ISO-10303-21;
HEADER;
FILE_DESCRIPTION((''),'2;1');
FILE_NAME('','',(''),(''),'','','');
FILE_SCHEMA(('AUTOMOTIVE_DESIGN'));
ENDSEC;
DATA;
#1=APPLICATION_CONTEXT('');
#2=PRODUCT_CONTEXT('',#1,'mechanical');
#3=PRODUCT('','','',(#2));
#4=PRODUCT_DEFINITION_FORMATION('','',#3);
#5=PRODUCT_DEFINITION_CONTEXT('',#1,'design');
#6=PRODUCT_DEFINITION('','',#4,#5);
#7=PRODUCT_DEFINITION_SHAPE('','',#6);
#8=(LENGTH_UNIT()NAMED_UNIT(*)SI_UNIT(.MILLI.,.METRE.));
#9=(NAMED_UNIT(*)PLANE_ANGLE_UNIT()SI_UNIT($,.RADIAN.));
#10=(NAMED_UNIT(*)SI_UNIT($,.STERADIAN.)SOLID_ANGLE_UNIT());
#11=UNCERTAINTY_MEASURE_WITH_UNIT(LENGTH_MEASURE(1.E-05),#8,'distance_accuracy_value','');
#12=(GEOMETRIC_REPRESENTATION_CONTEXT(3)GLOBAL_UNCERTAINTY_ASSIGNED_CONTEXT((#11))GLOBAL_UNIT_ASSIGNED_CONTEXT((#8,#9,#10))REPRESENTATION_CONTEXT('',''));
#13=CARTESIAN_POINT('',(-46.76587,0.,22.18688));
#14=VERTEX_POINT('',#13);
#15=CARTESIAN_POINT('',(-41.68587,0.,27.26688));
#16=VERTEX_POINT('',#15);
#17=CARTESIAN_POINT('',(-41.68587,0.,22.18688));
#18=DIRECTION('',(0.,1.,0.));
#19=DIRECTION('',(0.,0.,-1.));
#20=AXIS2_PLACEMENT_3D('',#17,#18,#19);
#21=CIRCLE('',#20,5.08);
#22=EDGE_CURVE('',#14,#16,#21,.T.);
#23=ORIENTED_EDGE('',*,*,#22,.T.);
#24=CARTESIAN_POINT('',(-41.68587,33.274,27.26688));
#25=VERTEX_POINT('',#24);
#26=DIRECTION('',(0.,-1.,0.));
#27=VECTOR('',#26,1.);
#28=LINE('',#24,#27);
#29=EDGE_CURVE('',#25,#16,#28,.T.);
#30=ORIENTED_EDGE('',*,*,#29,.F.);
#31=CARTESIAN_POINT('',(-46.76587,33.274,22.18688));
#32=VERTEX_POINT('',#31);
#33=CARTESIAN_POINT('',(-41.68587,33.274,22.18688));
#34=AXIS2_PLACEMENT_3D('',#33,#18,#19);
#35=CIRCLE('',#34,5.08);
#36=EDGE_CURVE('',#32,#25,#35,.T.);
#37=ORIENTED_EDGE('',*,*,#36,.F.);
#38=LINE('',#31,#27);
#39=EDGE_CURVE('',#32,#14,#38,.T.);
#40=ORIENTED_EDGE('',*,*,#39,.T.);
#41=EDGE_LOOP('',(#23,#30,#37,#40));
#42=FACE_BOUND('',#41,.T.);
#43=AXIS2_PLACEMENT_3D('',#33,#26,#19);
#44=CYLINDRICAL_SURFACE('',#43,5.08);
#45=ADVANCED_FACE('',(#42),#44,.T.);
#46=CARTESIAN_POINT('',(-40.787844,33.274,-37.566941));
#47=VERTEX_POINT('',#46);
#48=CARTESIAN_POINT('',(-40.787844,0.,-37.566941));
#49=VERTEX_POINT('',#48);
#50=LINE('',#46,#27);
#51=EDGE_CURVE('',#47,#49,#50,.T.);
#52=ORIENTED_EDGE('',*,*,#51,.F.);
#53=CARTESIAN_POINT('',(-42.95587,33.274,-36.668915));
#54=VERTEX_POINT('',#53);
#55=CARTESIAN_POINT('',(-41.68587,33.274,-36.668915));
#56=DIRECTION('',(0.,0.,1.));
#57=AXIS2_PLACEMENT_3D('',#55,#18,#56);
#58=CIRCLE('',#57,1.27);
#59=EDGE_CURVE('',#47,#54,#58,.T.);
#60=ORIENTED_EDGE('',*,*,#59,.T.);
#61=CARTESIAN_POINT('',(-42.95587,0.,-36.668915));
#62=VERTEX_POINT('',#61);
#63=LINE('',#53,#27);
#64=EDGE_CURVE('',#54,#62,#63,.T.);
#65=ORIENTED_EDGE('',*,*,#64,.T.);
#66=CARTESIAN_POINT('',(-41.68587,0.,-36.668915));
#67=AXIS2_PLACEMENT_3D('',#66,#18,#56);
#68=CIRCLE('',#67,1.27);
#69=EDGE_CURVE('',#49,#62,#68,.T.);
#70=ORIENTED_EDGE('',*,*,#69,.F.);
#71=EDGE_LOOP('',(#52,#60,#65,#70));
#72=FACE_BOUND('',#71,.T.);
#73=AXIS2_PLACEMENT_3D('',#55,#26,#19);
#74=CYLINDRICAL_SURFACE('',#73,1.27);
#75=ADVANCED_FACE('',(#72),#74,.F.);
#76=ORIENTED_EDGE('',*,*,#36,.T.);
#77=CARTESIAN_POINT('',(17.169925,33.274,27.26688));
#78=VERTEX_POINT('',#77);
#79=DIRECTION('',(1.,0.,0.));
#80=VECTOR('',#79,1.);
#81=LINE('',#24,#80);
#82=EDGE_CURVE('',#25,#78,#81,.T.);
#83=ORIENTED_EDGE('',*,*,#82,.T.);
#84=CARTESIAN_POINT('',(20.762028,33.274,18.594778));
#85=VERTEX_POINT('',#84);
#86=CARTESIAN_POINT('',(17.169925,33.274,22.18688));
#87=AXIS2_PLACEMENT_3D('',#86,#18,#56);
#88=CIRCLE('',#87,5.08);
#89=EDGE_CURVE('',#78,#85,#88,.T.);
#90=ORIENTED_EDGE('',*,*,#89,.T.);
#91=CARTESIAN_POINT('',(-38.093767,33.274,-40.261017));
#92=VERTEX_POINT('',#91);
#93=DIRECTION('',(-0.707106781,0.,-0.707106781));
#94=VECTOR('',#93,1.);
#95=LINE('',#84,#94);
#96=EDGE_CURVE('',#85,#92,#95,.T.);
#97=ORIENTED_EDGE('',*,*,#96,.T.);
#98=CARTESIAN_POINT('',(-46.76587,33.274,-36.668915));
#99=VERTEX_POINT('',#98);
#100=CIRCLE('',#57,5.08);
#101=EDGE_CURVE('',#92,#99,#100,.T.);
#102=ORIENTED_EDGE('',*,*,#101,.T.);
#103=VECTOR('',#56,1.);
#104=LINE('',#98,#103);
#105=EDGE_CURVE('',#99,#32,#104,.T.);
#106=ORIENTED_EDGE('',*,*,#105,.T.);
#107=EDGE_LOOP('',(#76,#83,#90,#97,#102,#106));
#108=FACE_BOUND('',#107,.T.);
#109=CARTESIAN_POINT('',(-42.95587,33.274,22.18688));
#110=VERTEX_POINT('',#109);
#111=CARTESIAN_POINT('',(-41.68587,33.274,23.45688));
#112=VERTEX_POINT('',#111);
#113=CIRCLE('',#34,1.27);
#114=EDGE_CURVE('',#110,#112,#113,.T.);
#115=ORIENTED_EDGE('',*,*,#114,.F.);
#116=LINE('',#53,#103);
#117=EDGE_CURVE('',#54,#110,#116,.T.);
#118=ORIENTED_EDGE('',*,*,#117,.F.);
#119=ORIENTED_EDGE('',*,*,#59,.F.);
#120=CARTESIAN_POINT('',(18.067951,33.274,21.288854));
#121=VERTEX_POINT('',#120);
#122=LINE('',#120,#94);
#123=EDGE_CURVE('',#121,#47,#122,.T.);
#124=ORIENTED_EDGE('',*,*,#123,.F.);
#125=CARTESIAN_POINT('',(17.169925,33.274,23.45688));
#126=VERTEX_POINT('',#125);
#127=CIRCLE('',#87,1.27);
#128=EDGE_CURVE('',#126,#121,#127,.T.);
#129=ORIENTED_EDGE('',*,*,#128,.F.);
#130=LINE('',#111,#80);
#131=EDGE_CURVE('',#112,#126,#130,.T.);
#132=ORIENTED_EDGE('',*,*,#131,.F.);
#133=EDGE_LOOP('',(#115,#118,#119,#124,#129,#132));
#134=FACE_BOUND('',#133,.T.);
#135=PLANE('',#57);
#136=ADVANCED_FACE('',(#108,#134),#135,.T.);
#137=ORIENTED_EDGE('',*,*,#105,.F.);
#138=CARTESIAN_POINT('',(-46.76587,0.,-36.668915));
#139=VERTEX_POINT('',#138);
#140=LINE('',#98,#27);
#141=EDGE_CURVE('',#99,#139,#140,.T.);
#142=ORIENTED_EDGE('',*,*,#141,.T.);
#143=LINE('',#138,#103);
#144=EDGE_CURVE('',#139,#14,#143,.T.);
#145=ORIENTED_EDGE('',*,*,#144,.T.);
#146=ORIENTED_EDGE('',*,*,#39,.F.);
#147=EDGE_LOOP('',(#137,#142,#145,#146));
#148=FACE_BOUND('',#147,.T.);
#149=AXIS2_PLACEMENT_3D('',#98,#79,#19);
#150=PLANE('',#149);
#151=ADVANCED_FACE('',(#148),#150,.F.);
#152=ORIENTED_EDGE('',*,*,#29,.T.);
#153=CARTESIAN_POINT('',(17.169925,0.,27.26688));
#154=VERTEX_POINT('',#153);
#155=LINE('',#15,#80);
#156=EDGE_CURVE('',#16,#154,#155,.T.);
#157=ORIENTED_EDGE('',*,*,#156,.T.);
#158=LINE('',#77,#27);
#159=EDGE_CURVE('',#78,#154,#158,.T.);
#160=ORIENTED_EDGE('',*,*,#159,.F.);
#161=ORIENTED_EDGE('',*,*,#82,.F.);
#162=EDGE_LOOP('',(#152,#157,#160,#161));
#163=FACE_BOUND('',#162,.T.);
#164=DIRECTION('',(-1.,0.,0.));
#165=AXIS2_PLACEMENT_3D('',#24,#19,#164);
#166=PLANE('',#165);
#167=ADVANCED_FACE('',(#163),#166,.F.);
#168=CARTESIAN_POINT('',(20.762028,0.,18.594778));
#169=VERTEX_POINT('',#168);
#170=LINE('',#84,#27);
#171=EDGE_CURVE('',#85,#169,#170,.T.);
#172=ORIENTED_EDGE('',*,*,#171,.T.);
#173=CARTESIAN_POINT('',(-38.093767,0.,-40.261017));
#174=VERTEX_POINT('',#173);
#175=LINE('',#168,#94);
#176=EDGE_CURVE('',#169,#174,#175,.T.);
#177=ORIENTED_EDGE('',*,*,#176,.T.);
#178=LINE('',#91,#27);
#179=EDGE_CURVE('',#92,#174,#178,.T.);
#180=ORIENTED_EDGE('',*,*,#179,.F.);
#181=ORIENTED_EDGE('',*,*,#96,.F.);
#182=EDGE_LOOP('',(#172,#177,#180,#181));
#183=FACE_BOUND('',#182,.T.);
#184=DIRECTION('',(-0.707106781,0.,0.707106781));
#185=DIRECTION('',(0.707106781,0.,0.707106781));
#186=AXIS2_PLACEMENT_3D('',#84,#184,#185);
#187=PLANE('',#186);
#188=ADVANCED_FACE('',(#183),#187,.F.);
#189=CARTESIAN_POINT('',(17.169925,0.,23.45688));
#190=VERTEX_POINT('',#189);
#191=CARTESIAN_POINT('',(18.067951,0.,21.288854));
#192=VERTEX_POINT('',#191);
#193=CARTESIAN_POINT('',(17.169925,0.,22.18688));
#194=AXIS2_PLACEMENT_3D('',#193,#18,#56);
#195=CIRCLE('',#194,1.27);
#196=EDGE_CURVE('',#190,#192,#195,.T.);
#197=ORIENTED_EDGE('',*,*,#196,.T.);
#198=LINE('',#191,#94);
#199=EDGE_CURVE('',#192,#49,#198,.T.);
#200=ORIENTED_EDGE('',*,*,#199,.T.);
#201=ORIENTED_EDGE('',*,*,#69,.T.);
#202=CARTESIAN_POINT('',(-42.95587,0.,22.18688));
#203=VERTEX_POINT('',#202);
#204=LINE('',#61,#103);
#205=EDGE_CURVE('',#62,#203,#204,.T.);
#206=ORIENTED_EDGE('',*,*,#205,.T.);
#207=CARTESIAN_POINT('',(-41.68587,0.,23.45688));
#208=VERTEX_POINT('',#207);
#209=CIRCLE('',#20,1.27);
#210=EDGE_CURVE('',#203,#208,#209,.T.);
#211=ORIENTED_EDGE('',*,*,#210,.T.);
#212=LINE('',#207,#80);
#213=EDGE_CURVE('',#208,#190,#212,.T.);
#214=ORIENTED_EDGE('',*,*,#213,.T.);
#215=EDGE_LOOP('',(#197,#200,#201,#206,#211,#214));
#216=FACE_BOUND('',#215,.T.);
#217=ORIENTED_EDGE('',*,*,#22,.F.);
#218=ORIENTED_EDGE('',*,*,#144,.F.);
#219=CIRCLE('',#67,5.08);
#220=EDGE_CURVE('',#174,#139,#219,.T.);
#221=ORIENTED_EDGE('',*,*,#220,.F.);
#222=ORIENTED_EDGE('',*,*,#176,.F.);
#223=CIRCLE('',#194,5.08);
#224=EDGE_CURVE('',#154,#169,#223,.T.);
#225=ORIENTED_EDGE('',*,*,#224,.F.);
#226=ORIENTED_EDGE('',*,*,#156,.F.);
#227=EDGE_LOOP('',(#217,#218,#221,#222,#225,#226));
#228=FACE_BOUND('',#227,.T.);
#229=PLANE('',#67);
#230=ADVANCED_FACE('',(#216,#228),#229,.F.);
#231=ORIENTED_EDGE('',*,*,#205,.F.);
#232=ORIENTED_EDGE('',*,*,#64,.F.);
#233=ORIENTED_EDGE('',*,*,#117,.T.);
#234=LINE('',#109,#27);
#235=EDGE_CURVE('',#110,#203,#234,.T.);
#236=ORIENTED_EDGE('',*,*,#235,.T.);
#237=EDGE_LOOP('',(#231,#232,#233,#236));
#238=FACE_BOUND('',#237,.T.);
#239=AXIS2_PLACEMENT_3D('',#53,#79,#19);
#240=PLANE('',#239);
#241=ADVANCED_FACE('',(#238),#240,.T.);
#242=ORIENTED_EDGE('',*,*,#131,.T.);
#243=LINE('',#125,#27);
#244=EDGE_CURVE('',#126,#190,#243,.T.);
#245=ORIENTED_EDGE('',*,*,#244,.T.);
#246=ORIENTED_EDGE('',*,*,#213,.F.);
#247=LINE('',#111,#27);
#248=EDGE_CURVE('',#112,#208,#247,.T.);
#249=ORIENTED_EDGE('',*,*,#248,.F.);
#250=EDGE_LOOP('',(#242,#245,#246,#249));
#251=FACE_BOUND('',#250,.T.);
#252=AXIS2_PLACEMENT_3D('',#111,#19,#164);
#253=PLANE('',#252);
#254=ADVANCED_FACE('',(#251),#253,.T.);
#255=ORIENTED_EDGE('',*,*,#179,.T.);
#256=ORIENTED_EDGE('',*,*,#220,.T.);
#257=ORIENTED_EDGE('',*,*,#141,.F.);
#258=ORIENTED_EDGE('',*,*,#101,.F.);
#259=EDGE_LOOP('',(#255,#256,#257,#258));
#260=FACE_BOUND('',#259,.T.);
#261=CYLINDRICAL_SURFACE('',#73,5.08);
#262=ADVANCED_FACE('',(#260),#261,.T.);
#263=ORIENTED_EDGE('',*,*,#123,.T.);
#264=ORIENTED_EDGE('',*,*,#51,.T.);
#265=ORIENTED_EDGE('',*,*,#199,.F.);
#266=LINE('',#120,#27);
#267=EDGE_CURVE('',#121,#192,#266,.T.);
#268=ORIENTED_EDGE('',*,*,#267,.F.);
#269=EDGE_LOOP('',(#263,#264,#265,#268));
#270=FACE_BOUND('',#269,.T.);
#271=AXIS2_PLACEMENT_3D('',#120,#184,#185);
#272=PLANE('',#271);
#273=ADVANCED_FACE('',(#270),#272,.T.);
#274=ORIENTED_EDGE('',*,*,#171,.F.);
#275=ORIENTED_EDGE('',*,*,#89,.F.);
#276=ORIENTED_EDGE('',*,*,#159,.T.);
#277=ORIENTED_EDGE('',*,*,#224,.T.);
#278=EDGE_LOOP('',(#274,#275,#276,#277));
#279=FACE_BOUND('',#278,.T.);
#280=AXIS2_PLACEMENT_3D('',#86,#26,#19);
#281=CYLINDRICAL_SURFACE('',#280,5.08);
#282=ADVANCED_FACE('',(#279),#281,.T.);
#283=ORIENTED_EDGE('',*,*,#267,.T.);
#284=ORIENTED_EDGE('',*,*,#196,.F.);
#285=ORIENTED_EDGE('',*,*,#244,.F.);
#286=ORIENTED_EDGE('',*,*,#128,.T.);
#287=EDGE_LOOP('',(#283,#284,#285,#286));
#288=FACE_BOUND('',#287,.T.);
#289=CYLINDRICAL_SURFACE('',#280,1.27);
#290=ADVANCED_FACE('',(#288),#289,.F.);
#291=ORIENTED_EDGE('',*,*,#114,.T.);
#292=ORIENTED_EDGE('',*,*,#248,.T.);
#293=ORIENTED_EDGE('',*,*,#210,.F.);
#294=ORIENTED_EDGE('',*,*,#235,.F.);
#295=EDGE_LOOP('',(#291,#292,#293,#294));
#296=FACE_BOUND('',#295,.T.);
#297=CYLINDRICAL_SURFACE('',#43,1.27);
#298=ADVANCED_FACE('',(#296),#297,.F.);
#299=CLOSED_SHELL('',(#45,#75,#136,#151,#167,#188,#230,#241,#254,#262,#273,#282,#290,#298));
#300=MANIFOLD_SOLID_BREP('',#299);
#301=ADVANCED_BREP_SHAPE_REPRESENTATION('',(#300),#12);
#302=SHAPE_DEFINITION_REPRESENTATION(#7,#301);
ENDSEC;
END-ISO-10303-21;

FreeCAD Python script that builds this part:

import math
import FreeCAD as App
import Part
import Sketcher
Q = App.Units.Quantity

doc = App.newDocument("Part")
body = doc.addObject("PartDesign::Body", "Body")

# Sketch on XZ plane
sketch1 = body.newObject("Sketcher::SketchObject", "Sketch")
sketch1.AttachmentSupport = (doc.getObject("XZ_Plane"), [""])
sketch1.MapMode = "FlatFace"
sketch1.addGeometry([
    Part.LineSegment(App.Vector(-46.8, -36.7, 0), App.Vector(-46.8, 22.2, 0)),  # 0
    Part.ArcOfCircle(Part.Circle(App.Vector(-41.7, 22.2, 0), App.Vector(0, 0, 1), 5.1), math.radians(90), math.radians(180)),  # 1
    Part.LineSegment(App.Vector(-41.7, 27.3, 0), App.Vector(17.2, 27.3, 0)),  # 2
    Part.ArcOfCircle(Part.Circle(App.Vector(17.2, 22.2, 0), App.Vector(0, 0, 1), 5.1), math.radians(-45), math.radians(90)),  # 3
    Part.LineSegment(App.Vector(20.8, 18.6, 0), App.Vector(-38.1, -40.3, 0)),  # 4
    Part.ArcOfCircle(Part.Circle(App.Vector(-41.7, -36.7, 0), App.Vector(0, 0, 1), 5.1), math.radians(180), math.radians(315)),  # 5
    Part.LineSegment(App.Vector(-43, 22.2, 0), App.Vector(-43, -36.7, 0)),  # 6
    Part.ArcOfCircle(Part.Circle(App.Vector(-41.7, -36.7, 0), App.Vector(0, 0, 1), 1.3), math.radians(180), math.radians(315)),  # 7
    Part.LineSegment(App.Vector(-40.8, -37.6, 0), App.Vector(18.1, 21.3, 0)),  # 8
    Part.ArcOfCircle(Part.Circle(App.Vector(17.2, 22.2, 0), App.Vector(0, 0, 1), 1.3), math.radians(-45), math.radians(90)),  # 9
    Part.LineSegment(App.Vector(17.2, 23.5, 0), App.Vector(-41.7, 23.5, 0)),  # 10
    Part.ArcOfCircle(Part.Circle(App.Vector(-41.7, 22.2, 0), App.Vector(0, 0, 1), 1.3), math.radians(90), math.radians(180)),  # 11
], False)
sketch1.addConstraint([
    Sketcher.Constraint("Tangent", 0, 2, 1, 2),
    Sketcher.Constraint("Tangent", 1, 1, 2, 1),
    Sketcher.Constraint("Tangent", 2, 2, 3, 2),
    Sketcher.Constraint("Tangent", 3, 1, 4, 1),
    Sketcher.Constraint("Tangent", 4, 2, 5, 2),
    Sketcher.Constraint("Tangent", 5, 1, 0, 1),
    Sketcher.Constraint("Tangent", 6, 2, 7, 1),
    Sketcher.Constraint("Tangent", 7, 2, 8, 1),
    Sketcher.Constraint("Tangent", 8, 2, 9, 1),
    Sketcher.Constraint("Tangent", 9, 2, 10, 1),
    Sketcher.Constraint("Tangent", 10, 2, 11, 1),
    Sketcher.Constraint("Tangent", 11, 2, 6, 1),
    Sketcher.Constraint("Vertical", 0),
    Sketcher.Constraint("Horizontal", 2),
    Sketcher.Constraint("Vertical", 6),
    Sketcher.Constraint("Horizontal", 10),
    Sketcher.Constraint("Coincident", 7, 3, 5, 3),
    Sketcher.Constraint("Coincident", 9, 3, 3, 3),
    Sketcher.Constraint("Coincident", 11, 3, 1, 3),
    Sketcher.Constraint("Equal", 1, 3),
    Sketcher.Constraint("Equal", 3, 5),
    Sketcher.Constraint("Equal", 10, 0),
    Sketcher.Constraint("Radius", 1, Q("0.2 in")),
    Sketcher.Constraint("Radius", 7, Q("0.05 in")),
    Sketcher.Constraint("DistanceX", 2, 1, 2, 2, Q("58.855795 mm")),
    Sketcher.Constraint("DistanceX", 1, 3, -1, 1, Q("41.68587 mm")),
    Sketcher.Constraint("DistanceY", -1, 1, 1, 3, Q("22.18688 mm")),
])
pad1 = body.newObject("PartDesign::Pad", "Pad")
pad1.Profile = sketch1
pad1.Length = Q("1.31 in")
pad1.Reversed = True

doc.recompute()
